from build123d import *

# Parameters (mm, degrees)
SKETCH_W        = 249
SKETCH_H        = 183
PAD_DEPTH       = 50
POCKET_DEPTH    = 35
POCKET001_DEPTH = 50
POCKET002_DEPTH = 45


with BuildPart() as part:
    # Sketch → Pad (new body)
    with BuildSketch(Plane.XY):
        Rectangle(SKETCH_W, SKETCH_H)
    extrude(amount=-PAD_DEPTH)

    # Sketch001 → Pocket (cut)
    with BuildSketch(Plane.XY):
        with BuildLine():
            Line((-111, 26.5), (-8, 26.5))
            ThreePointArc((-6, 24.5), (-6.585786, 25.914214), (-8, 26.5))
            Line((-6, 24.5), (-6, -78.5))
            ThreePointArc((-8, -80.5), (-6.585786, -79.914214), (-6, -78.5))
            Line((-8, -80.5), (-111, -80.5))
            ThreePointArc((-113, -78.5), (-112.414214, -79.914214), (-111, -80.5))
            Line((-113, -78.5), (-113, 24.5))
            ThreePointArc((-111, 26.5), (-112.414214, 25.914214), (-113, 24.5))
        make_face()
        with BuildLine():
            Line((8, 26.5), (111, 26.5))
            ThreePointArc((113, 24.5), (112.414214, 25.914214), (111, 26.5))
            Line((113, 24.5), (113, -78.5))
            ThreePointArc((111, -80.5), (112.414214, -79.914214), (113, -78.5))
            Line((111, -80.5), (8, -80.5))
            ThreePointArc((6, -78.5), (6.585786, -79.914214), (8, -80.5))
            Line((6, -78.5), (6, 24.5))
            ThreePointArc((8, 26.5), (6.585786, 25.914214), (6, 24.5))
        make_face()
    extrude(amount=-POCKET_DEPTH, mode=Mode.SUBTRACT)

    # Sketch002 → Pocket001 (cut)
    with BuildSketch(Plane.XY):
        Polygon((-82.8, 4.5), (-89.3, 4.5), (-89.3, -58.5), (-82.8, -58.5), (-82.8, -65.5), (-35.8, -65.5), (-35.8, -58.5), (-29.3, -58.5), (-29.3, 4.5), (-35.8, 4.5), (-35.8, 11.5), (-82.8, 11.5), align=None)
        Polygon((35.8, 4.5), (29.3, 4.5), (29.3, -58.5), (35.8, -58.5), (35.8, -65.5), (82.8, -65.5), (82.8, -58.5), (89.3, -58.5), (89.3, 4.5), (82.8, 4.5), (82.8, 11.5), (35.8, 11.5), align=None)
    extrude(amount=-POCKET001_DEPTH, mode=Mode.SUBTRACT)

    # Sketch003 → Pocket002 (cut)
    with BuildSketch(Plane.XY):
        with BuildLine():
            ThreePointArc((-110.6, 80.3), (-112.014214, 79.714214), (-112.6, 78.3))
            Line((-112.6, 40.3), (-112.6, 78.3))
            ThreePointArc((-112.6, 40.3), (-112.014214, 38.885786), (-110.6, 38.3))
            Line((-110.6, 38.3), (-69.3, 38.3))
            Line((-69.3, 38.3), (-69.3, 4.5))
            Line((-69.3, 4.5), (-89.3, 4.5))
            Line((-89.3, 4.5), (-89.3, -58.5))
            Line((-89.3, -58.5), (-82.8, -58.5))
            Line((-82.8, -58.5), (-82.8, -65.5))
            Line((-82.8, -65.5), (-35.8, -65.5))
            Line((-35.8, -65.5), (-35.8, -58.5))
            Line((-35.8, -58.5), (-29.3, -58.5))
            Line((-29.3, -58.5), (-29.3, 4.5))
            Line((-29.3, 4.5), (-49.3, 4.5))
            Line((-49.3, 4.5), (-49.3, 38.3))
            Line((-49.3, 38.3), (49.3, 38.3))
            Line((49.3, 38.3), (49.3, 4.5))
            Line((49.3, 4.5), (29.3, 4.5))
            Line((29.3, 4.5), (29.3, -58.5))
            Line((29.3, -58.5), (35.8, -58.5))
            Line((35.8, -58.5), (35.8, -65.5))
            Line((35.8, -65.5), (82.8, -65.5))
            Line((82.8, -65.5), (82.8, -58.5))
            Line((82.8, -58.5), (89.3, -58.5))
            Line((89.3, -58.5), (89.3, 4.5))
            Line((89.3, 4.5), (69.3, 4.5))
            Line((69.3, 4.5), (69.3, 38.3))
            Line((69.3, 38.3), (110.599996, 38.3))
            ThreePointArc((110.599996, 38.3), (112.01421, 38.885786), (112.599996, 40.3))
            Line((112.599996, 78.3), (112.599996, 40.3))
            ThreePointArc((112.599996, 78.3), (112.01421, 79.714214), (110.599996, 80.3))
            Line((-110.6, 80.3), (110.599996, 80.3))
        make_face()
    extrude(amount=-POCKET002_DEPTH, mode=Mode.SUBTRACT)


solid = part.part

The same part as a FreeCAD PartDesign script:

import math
import FreeCAD as App
import Part
import Sketcher

V = App.Vector
Q = App.Units.Quantity

doc = App.newDocument("Part")
body = doc.addObject("PartDesign::Body", "Body")

sketch1 = body.newObject("Sketcher::SketchObject", "Sketch")
sketch1.AttachmentSupport = (doc.getObject("XY_Plane"), [""])
sketch1.MapMode = "FlatFace"
sketch1.addGeometry([
    Part.LineSegment(V(-124, 92, 0), V(-124, -92, 0)),
    Part.LineSegment(V(-124, -92, 0), V(124, -92, 0)),
    Part.LineSegment(V(124, -92, 0), V(124, 92, 0)),
    Part.LineSegment(V(124, 92, 0), V(-124, 92, 0)),
], False)
sketch1.addConstraint([
    Sketcher.Constraint("Coincident", 0, 2, 1, 1),
    Sketcher.Constraint("Coincident", 1, 2, 2, 1),
    Sketcher.Constraint("Coincident", 2, 2, 3, 1),
    Sketcher.Constraint("Coincident", 3, 2, 0, 1),
    Sketcher.Constraint("Vertical", 0),
    Sketcher.Constraint("Horizontal", 1),
    Sketcher.Constraint("Vertical", 2),
    Sketcher.Constraint("Horizontal", 3),
    Sketcher.Constraint("Symmetric", 0, 2, 2, 2, -1, 1),
    Sketcher.Constraint("DistanceX", 1, 1, 1, 2, Q("249 mm")),
    Sketcher.Constraint("DistanceY", 0, 2, 0, 1, Q("183 mm")),
])
pad1 = body.newObject("PartDesign::Pad", "Pad")
pad1.Profile = sketch1
pad1.Length = 50
pad1.Reversed = True

sketch2 = body.newObject("Sketcher::SketchObject", "Sketch001")
sketch2.AttachmentSupport = (doc.getObject("XY_Plane"), [""])
sketch2.MapMode = "FlatFace"
sketch2.addGeometry([
    Part.LineSegment(V(-8, 26.5, 0), V(-111, 26.5, 0)),
    Part.ArcOfCircle(Part.Circle(V(-111, 24.5, 0), V(0, 0, 1), 2), math.radians(90), math.radians(180)),
    Part.LineSegment(V(-113, 24.5, 0), V(-113, -78.5, 0)),
    Part.ArcOfCircle(Part.Circle(V(-111, -78.5, 0), V(0, 0, 1), 2), math.radians(180), math.radians(270)),
    Part.LineSegment(V(-111, -80.5, 0), V(-8, -80.5, 0)),
    Part.ArcOfCircle(Part.Circle(V(-8, -78.5, 0), V(0, 0, 1), 2), math.radians(-90), math.radians(0)),
    Part.LineSegment(V(-6, -78.5, 0), V(-6, 24.5, 0)),
    Part.ArcOfCircle(Part.Circle(V(-8, 24.5, 0), V(0, 0, 1), 2), math.radians(0), math.radians(90)),
    Part.LineSegment(V(111, 26.5, 0), V(8, 26.5, 0)),
    Part.ArcOfCircle(Part.Circle(V(8, 24.5, 0), V(0, 0, 1), 2), math.radians(90), math.radians(180)),
    Part.LineSegment(V(6, 24.5, 0), V(6, -78.5, 0)),
    Part.ArcOfCircle(Part.Circle(V(8, -78.5, 0), V(0, 0, 1), 2), math.radians(180), math.radians(270)),
    Part.LineSegment(V(8, -80.5, 0), V(111, -80.5, 0)),
    Part.ArcOfCircle(Part.Circle(V(111, -78.5, 0), V(0, 0, 1), 2), math.radians(-90), math.radians(0)),
    Part.LineSegment(V(113, -78.5, 0), V(113, 24.5, 0)),
    Part.ArcOfCircle(Part.Circle(V(111, 24.5, 0), V(0, 0, 1), 2), math.radians(0), math.radians(90)),
], False)
sketch2.addConstraint([
    Sketcher.Constraint("Tangent", 0, 2, 1, 1),
    Sketcher.Constraint("Tangent", 1, 2, 2, 1),
    Sketcher.Constraint("Tangent", 2, 2, 3, 1),
    Sketcher.Constraint("Tangent", 3, 2, 4, 1),
    Sketcher.Constraint("Tangent", 4, 2, 5, 1),
    Sketcher.Constraint("Tangent", 5, 2, 6, 1),
    Sketcher.Constraint("Tangent", 6, 2, 7, 1),
    Sketcher.Constraint("Tangent", 7, 2, 0, 1),
    Sketcher.Constraint("Tangent", 8, 2, 9, 1),
    Sketcher.Constraint("Tangent", 9, 2, 10, 1),
    Sketcher.Constraint("Tangent", 10, 2, 11, 1),
    Sketcher.Constraint("Tangent", 11, 2, 12, 1),
    Sketcher.Constraint("Tangent", 12, 2, 13, 1),
    Sketcher.Constraint("Tangent", 13, 2, 14, 1),
    Sketcher.Constraint("Tangent", 14, 2, 15, 1),
    Sketcher.Constraint("Tangent", 15, 2, 8, 1),
    Sketcher.Constraint("Horizontal", 0),
    Sketcher.Constraint("Vertical", 2),
    Sketcher.Constraint("Horizontal", 4),
    Sketcher.Constraint("Vertical", 6),
    Sketcher.Constraint("Horizontal", 8),
    Sketcher.Constraint("Vertical", 10),
    Sketcher.Constraint("Horizontal", 12),
    Sketcher.Constraint("Vertical", 14),
    Sketcher.Constraint("Equal", 1, 3),
    Sketcher.Constraint("Equal", 3, 5),
    Sketcher.Constraint("Equal", 5, 7),
    Sketcher.Constraint("Equal", 7, 9),
    Sketcher.Constraint("Equal", 9, 11),
    Sketcher.Constraint("Equal", 11, 13),
    Sketcher.Constraint("Equal", 13, 15),
    Sketcher.Constraint("Symmetric", 7, 3, 9, 3, -2),
    Sketcher.Constraint("Symmetric", 3, 3, 13, 3, -2),
    Sketcher.Constraint("Equal", 12, 2),
    Sketcher.Constraint("Radius", 1, Q("1.999999 mm")),
    Sketcher.Constraint("DistanceX", 0, 2, 0, 1, Q("103 mm")),
    Sketcher.Constraint("DistanceX", 1, 3, -1, 1, Q("111.000001 mm")),
    Sketcher.Constraint("DistanceY", -1, 1, 1, 3, Q("24.500001 mm")),
])
pocket1 = body.newObject("PartDesign::Pocket", "Pocket")
pocket1.Profile = sketch2
pocket1.Length = 35

sketch3 = body.newObject("Sketcher::SketchObject", "Sketch002")
sketch3.AttachmentSupport = (doc.getObject("XY_Plane"), [""])
sketch3.MapMode = "FlatFace"
sketch3.addGeometry([
    Part.LineSegment(V(-83, 4, 0), V(-89, 4, 0)),
    Part.LineSegment(V(-89, 4, 0), V(-89, -58, 0)),
    Part.LineSegment(V(-89, -58, 0), V(-83, -58, 0)),
    Part.LineSegment(V(-83, -58, 0), V(-83, -66, 0)),
    Part.LineSegment(V(-83, -66, 0), V(-36, -66, 0)),
    Part.LineSegment(V(-36, -66, 0), V(-36, -58, 0)),
    Part.LineSegment(V(-36, -58, 0), V(-29, -58, 0)),
    Part.LineSegment(V(-29, -58, 0), V(-29, 4, 0)),
    Part.LineSegment(V(-29, 4, 0), V(-36, 4, 0)),
    Part.LineSegment(V(-36, 4, 0), V(-36, 12, 0)),
    Part.LineSegment(V(-36, 12, 0), V(-83, 12, 0)),
    Part.LineSegment(V(-83, 12, 0), V(-83, 4, 0)),
    Part.LineSegment(V(36, 4, 0), V(29, 4, 0)),
    Part.LineSegment(V(29, 4, 0), V(29, -58, 0)),
    Part.LineSegment(V(29, -58, 0), V(36, -58, 0)),
    Part.LineSegment(V(36, -58, 0), V(36, -66, 0)),
    Part.LineSegment(V(36, -66, 0), V(83, -66, 0)),
    Part.LineSegment(V(83, -66, 0), V(83, -58, 0)),
    Part.LineSegment(V(83, -58, 0), V(89, -58, 0)),
    Part.LineSegment(V(89, -58, 0), V(89, 4, 0)),
    Part.LineSegment(V(89, 4, 0), V(83, 4, 0)),
    Part.LineSegment(V(83, 4, 0), V(83, 12, 0)),
    Part.LineSegment(V(83, 12, 0), V(36, 12, 0)),
    Part.LineSegment(V(36, 12, 0), V(36, 4, 0)),
], False)
sketch3.addConstraint([
    Sketcher.Constraint("Coincident", 0, 2, 1, 1),
    Sketcher.Constraint("Coincident", 1, 2, 2, 1),
    Sketcher.Constraint("Coincident", 2, 2, 3, 1),
    Sketcher.Constraint("Coincident", 3, 2, 4, 1),
    Sketcher.Constraint("Coincident", 4, 2, 5, 1),
    Sketcher.Constraint("Coincident", 5, 2, 6, 1),
    Sketcher.Constraint("Coincident", 6, 2, 7, 1),
    Sketcher.Constraint("Coincident", 7, 2, 8, 1),
    Sketcher.Constraint("Coincident", 8, 2, 9, 1),
    Sketcher.Constraint("Coincident", 9, 2, 10, 1),
    Sketcher.Constraint("Coincident", 10, 2, 11, 1),
    Sketcher.Constraint("Coincident", 11, 2, 0, 1),
    Sketcher.Constraint("Coincident", 12, 2, 13, 1),
    Sketcher.Constraint("Coincident", 13, 2, 14, 1),
    Sketcher.Constraint("Coincident", 14, 2, 15, 1),
    Sketcher.Constraint("Coincident", 15, 2, 16, 1),
    Sketcher.Constraint("Coincident", 16, 2, 17, 1),
    Sketcher.Constraint("Coincident", 17, 2, 18, 1),
    Sketcher.Constraint("Coincident", 18, 2, 19, 1),
    Sketcher.Constraint("Coincident", 19, 2, 20, 1),
    Sketcher.Constraint("Coincident", 20, 2, 21, 1),
    Sketcher.Constraint("Coincident", 21, 2, 22, 1),
    Sketcher.Constraint("Coincident", 22, 2, 23, 1),
    Sketcher.Constraint("Coincident", 23, 2, 12, 1),
    Sketcher.Constraint("Horizontal", 0),
    Sketcher.Constraint("Vertical", 1),
    Sketcher.Constraint("Horizontal", 2),
    Sketcher.Constraint("Vertical", 3),
    Sketcher.Constraint("Horizontal", 4),
    Sketcher.Constraint("Vertical", 5),
    Sketcher.Constraint("Horizontal", 6),
    Sketcher.Constraint("Vertical", 7),
    Sketcher.Constraint("Horizontal", 8),
    Sketcher.Constraint("Vertical", 9),
    Sketcher.Constraint("Horizontal", 10),
    Sketcher.Constraint("Vertical", 11),
    Sketcher.Constraint("Horizontal", 12),
    Sketcher.Constraint("Vertical", 13),
    Sketcher.Constraint("Horizontal", 14),
    Sketcher.Constraint("Vertical", 15),
    Sketcher.Constraint("Horizontal", 16),
    Sketcher.Constraint("Vertical", 17),
    Sketcher.Constraint("Horizontal", 18),
    Sketcher.Constraint("Vertical", 19),
    Sketcher.Constraint("Horizontal", 20),
    Sketcher.Constraint("Vertical", 21),
    Sketcher.Constraint("Horizontal", 22),
    Sketcher.Constraint("Vertical", 23),
    Sketcher.Constraint("Symmetric", 7, 2, 12, 2, -2),
    Sketcher.Constraint("Symmetric", 5, 2, 14, 2, -2),
    Sketcher.Constraint("Symmetric", 3, 2, 16, 2, -2),
    Sketcher.Constraint("Symmetric", 1, 2, 18, 2, -2),
    Sketcher.Constraint("Symmetric", 11, 2, 20, 2, -2),
    Sketcher.Constraint("Symmetric", 9, 2, 22, 2, -2),
    Sketcher.Constraint("Horizontal", 2, 2, 5, 2),
    Sketcher.Constraint("Horizontal", 0, 2, 7, 2),
    Sketcher.Constraint("Vertical", 5, 2, 8, 2),
    Sketcher.Constraint("Vertical", 3, 2, 10, 2),
    Sketcher.Constraint("Equal", 2, 6),
    Sketcher.Constraint("Equal", 5, 9),
    Sketcher.Constraint("DistanceX", 4, 1, 4, 2, Q("47 mm")),
    Sketcher.Constraint("DistanceY", 1, 2, 1, 1, Q("63 mm")),
    Sketcher.Constraint("DistanceY", 3, 2, 3, 1, Q("7 mm")),
    Sketcher.Constraint("DistanceX", 0, 2, 0, 1, Q("6.5 mm")),
    Sketcher.Constraint("DistanceX", 0, 2, -1, 1, Q("89.3 mm")),
    Sketcher.Constraint("DistanceY", -1, 1, 0, 2, Q("4.5 mm")),
])
pocket2 = body.newObject("PartDesign::Pocket", "Pocket001")
pocket2.Profile = sketch3
pocket2.Length = 50

sketch4 = body.newObject("Sketcher::SketchObject", "Sketch003")
sketch4.AttachmentSupport = (doc.getObject("XY_Plane"), [""])
sketch4.MapMode = "FlatFace"
sketch4.addGeometry([
    Part.ArcOfCircle(Part.Circle(V(-110.6, 78.3, 0), V(0, 0, 1), 2), math.radians(90), math.radians(180)),
    Part.LineSegment(V(-112.6, 78.3, 0), V(-112.6, 40.3, 0)),
    Part.ArcOfCircle(Part.Circle(V(-110.6, 40.3, 0), V(0, 0, 1), 2), math.radians(180), math.radians(270)),
    Part.LineSegment(V(-110.6, 38.3, 0), V(-69.3, 38.3, 0)),
    Part.LineSegment(V(-69.3, 38.3, 0), V(-69.3, 4.5, 0)),
    Part.LineSegment(V(-69.3, 4.5, 0), V(-89.3, 4.5, 0)),
    Part.LineSegment(V(-89.3, 4.5, 0), V(-89.3, -58.5, 0)),
    Part.LineSegment(V(-89.3, -58.5, 0), V(-82.8, -58.5, 0)),
    Part.LineSegment(V(-82.8, -58.5, 0), V(-82.8, -65.5, 0)),
    Part.LineSegment(V(-82.8, -65.5, 0), V(-35.8, -65.5, 0)),
    Part.LineSegment(V(-35.8, -65.5, 0), V(-35.8, -58.5, 0)),
    Part.LineSegment(V(-35.8, -58.5, 0), V(-29.3, -58.5, 0)),
    Part.LineSegment(V(-29.3, -58.5, 0), V(-29.3, 4.5, 0)),
    Part.LineSegment(V(-29.3, 4.5, 0), V(-49.3, 4.5, 0)),
    Part.LineSegment(V(-49.3, 4.5, 0), V(-49.3, 38.3, 0)),
    Part.LineSegment(V(-49.3, 38.3, 0), V(49.3, 38.3, 0)),
    Part.LineSegment(V(49.3, 38.3, 0), V(49.3, 4.5, 0)),
    Part.LineSegment(V(49.3, 4.5, 0), V(29.3, 4.5, 0)),
    Part.LineSegment(V(29.3, 4.5, 0), V(29.3, -58.5, 0)),
    Part.LineSegment(V(29.3, -58.5, 0), V(35.8, -58.5, 0)),
    Part.LineSegment(V(35.8, -58.5, 0), V(35.8, -65.5, 0)),
    Part.LineSegment(V(35.8, -65.5, 0), V(82.8, -65.5, 0)),
    Part.LineSegment(V(82.8, -65.5, 0), V(82.8, -58.5, 0)),
    Part.LineSegment(V(82.8, -58.5, 0), V(89.3, -58.5, 0)),
    Part.LineSegment(V(89.3, -58.5, 0), V(89.3, 4.5, 0)),
    Part.LineSegment(V(89.3, 4.5, 0), V(69.3, 4.5, 0)),
    Part.LineSegment(V(69.3, 4.5, 0), V(69.3, 38.3, 0)),
    Part.LineSegment(V(69.3, 38.3, 0), V(110.6, 38.3, 0)),
    Part.ArcOfCircle(Part.Circle(V(110.6, 40.3, 0), V(0, 0, 1), 2), math.radians(-90), math.radians(0)),
    Part.LineSegment(V(112.6, 40.3, 0), V(112.6, 78.3, 0)),
    Part.ArcOfCircle(Part.Circle(V(110.6, 78.3, 0), V(0, 0, 1), 2), math.radians(0), math.radians(90)),
    Part.LineSegment(V(110.6, 80.3, 0), V(-110.6, 80.3, 0)),
], False)
sketch4.addConstraint([
    Sketcher.Constraint("Tangent", 0, 2, 1, 1),
    Sketcher.Constraint("Tangent", 1, 2, 2, 1),
    Sketcher.Constraint("Tangent", 2, 2, 3, 1),
    Sketcher.Constraint("Coincident", 3, 2, 4, 1),
    Sketcher.Constraint("Coincident", 4, 2, 5, 1),
    Sketcher.Constraint("Coincident", 5, 2, 6, 1),
    Sketcher.Constraint("Coincident", 6, 2, 7, 1),
    Sketcher.Constraint("Coincident", 7, 2, 8, 1),
    Sketcher.Constraint("Coincident", 8, 2, 9, 1),
    Sketcher.Constraint("Coincident", 9, 2, 10, 1),
    Sketcher.Constraint("Coincident", 10, 2, 11, 1),
    Sketcher.Constraint("Coincident", 11, 2, 12, 1),
    Sketcher.Constraint("Coincident", 12, 2, 13, 1),
    Sketcher.Constraint("Coincident", 13, 2, 14, 1),
    Sketcher.Constraint("Coincident", 14, 2, 15, 1),
    Sketcher.Constraint("Coincident", 15, 2, 16, 1),
    Sketcher.Constraint("Coincident", 16, 2, 17, 1),
    Sketcher.Constraint("Coincident", 17, 2, 18, 1),
    Sketcher.Constraint("Coincident", 18, 2, 19, 1),
    Sketcher.Constraint("Coincident", 19, 2, 20, 1),
    Sketcher.Constraint("Coincident", 20, 2, 21, 1),
    Sketcher.Constraint("Coincident", 21, 2, 22, 1),
    Sketcher.Constraint("Coincident", 22, 2, 23, 1),
    Sketcher.Constraint("Coincident", 23, 2, 24, 1),
    Sketcher.Constraint("Coincident", 24, 2, 25, 1),
    Sketcher.Constraint("Coincident", 25, 2, 26, 1),
    Sketcher.Constraint("Coincident", 26, 2, 27, 1),
    Sketcher.Constraint("Tangent", 27, 2, 28, 1),
    Sketcher.Constraint("Tangent", 28, 2, 29, 1),
    Sketcher.Constraint("Tangent", 29, 2, 30, 1),
    Sketcher.Constraint("Tangent", 30, 2, 31, 1),
    Sketcher.Constraint("Tangent", 31, 2, 0, 1),
    Sketcher.Constraint("Vertical", 1),
    Sketcher.Constraint("Horizontal", 3),
    Sketcher.Constraint("Vertical", 4),
    Sketcher.Constraint("Horizontal", 5),
    Sketcher.Constraint("Vertical", 6),
    Sketcher.Constraint("Horizontal", 7),
    Sketcher.Constraint("Vertical", 8),
    Sketcher.Constraint("Horizontal", 9),
    Sketcher.Constraint("Vertical", 10),
    Sketcher.Constraint("Horizontal", 11),
    Sketcher.Constraint("Vertical", 12),
    Sketcher.Constraint("Horizontal", 13),
    Sketcher.Constraint("Vertical", 14),
    Sketcher.Constraint("Horizontal", 15),
    Sketcher.Constraint("Vertical", 16),
    Sketcher.Constraint("Horizontal", 17),
    Sketcher.Constraint("Vertical", 18),
    Sketcher.Constraint("Horizontal", 19),
    Sketcher.Constraint("Vertical", 20),
    Sketcher.Constraint("Horizontal", 21),
    Sketcher.Constraint("Vertical", 22),
    Sketcher.Constraint("Horizontal", 23),
    Sketcher.Constraint("Vertical", 24),
    Sketcher.Constraint("Horizontal", 25),
    Sketcher.Constraint("Vertical", 26),
    Sketcher.Constraint("Horizontal", 27),
    Sketcher.Constraint("Vertical", 29),
    Sketcher.Constraint("Horizontal", 31),
    Sketcher.Constraint("Equal", 0, 2),
    Sketcher.Constraint("Equal", 2, 28),
    Sketcher.Constraint("Equal", 28, 30),
    Sketcher.Constraint("Symmetric", 2, 3, 28, 3, -2),
    Sketcher.Constraint("Symmetric", 13, 2, 16, 2, -2),
    Sketcher.Constraint("Symmetric", 11, 2, 18, 2, -2),
    Sketcher.Constraint("Symmetric", 9, 2, 20, 2, -2),
    Sketcher.Constraint("Symmetric", 7, 2, 22, 2, -2),
    Sketcher.Constraint("Symmetric", 5, 2, 24, 2, -2),
    Sketcher.Constraint("Horizontal", 7, 2, 10, 2),
    Sketcher.Constraint("Horizontal", 5, 2, 12, 2),
    Sketcher.Constraint("Horizontal", 3, 2, 14, 2),
    Sketcher.Constraint("Equal", 7, 11),
    Sketcher.Constraint("Equal", 5, 13),
    Sketcher.Constraint("Equal", 17, 25),
    Sketcher.Constraint("Radius", 0, Q("1.999999 mm")),
    Sketcher.Constraint("DistanceX", 5, 2, 5, 1, Q("20 mm")),
    Sketcher.Constraint("DistanceX", 9, 1, 9, 2, Q("47 mm")),
    Sketcher.Constraint("DistanceY", 1, 2, 1, 1, Q("38 mm")),
    Sketcher.Constraint("DistanceY", 6, 2, 6, 1, Q("63 mm")),
    Sketcher.Constraint("DistanceY", 8, 2, 8, 1, Q("7 mm")),
    Sketcher.Constraint("DistanceX", 3, 1, 3, 2, Q("41.3 mm")),
    Sketcher.Constraint("DistanceX", 7, 1, 7, 2, Q("6.5 mm")),
    Sketcher.Constraint("DistanceX", 15, 1, 15, 2, Q("98.6 mm")),
    Sketcher.Constraint("DistanceY", 4, 2, 4, 1, Q("33.8 mm")),
    Sketcher.Constraint("DistanceY", -1, 1, 0, 3, Q("78.300001 mm")),
])
pocket3 = body.newObject("PartDesign::Pocket", "Pocket002")
pocket3.Profile = sketch4
pocket3.Length = 45

doc.recompute()
